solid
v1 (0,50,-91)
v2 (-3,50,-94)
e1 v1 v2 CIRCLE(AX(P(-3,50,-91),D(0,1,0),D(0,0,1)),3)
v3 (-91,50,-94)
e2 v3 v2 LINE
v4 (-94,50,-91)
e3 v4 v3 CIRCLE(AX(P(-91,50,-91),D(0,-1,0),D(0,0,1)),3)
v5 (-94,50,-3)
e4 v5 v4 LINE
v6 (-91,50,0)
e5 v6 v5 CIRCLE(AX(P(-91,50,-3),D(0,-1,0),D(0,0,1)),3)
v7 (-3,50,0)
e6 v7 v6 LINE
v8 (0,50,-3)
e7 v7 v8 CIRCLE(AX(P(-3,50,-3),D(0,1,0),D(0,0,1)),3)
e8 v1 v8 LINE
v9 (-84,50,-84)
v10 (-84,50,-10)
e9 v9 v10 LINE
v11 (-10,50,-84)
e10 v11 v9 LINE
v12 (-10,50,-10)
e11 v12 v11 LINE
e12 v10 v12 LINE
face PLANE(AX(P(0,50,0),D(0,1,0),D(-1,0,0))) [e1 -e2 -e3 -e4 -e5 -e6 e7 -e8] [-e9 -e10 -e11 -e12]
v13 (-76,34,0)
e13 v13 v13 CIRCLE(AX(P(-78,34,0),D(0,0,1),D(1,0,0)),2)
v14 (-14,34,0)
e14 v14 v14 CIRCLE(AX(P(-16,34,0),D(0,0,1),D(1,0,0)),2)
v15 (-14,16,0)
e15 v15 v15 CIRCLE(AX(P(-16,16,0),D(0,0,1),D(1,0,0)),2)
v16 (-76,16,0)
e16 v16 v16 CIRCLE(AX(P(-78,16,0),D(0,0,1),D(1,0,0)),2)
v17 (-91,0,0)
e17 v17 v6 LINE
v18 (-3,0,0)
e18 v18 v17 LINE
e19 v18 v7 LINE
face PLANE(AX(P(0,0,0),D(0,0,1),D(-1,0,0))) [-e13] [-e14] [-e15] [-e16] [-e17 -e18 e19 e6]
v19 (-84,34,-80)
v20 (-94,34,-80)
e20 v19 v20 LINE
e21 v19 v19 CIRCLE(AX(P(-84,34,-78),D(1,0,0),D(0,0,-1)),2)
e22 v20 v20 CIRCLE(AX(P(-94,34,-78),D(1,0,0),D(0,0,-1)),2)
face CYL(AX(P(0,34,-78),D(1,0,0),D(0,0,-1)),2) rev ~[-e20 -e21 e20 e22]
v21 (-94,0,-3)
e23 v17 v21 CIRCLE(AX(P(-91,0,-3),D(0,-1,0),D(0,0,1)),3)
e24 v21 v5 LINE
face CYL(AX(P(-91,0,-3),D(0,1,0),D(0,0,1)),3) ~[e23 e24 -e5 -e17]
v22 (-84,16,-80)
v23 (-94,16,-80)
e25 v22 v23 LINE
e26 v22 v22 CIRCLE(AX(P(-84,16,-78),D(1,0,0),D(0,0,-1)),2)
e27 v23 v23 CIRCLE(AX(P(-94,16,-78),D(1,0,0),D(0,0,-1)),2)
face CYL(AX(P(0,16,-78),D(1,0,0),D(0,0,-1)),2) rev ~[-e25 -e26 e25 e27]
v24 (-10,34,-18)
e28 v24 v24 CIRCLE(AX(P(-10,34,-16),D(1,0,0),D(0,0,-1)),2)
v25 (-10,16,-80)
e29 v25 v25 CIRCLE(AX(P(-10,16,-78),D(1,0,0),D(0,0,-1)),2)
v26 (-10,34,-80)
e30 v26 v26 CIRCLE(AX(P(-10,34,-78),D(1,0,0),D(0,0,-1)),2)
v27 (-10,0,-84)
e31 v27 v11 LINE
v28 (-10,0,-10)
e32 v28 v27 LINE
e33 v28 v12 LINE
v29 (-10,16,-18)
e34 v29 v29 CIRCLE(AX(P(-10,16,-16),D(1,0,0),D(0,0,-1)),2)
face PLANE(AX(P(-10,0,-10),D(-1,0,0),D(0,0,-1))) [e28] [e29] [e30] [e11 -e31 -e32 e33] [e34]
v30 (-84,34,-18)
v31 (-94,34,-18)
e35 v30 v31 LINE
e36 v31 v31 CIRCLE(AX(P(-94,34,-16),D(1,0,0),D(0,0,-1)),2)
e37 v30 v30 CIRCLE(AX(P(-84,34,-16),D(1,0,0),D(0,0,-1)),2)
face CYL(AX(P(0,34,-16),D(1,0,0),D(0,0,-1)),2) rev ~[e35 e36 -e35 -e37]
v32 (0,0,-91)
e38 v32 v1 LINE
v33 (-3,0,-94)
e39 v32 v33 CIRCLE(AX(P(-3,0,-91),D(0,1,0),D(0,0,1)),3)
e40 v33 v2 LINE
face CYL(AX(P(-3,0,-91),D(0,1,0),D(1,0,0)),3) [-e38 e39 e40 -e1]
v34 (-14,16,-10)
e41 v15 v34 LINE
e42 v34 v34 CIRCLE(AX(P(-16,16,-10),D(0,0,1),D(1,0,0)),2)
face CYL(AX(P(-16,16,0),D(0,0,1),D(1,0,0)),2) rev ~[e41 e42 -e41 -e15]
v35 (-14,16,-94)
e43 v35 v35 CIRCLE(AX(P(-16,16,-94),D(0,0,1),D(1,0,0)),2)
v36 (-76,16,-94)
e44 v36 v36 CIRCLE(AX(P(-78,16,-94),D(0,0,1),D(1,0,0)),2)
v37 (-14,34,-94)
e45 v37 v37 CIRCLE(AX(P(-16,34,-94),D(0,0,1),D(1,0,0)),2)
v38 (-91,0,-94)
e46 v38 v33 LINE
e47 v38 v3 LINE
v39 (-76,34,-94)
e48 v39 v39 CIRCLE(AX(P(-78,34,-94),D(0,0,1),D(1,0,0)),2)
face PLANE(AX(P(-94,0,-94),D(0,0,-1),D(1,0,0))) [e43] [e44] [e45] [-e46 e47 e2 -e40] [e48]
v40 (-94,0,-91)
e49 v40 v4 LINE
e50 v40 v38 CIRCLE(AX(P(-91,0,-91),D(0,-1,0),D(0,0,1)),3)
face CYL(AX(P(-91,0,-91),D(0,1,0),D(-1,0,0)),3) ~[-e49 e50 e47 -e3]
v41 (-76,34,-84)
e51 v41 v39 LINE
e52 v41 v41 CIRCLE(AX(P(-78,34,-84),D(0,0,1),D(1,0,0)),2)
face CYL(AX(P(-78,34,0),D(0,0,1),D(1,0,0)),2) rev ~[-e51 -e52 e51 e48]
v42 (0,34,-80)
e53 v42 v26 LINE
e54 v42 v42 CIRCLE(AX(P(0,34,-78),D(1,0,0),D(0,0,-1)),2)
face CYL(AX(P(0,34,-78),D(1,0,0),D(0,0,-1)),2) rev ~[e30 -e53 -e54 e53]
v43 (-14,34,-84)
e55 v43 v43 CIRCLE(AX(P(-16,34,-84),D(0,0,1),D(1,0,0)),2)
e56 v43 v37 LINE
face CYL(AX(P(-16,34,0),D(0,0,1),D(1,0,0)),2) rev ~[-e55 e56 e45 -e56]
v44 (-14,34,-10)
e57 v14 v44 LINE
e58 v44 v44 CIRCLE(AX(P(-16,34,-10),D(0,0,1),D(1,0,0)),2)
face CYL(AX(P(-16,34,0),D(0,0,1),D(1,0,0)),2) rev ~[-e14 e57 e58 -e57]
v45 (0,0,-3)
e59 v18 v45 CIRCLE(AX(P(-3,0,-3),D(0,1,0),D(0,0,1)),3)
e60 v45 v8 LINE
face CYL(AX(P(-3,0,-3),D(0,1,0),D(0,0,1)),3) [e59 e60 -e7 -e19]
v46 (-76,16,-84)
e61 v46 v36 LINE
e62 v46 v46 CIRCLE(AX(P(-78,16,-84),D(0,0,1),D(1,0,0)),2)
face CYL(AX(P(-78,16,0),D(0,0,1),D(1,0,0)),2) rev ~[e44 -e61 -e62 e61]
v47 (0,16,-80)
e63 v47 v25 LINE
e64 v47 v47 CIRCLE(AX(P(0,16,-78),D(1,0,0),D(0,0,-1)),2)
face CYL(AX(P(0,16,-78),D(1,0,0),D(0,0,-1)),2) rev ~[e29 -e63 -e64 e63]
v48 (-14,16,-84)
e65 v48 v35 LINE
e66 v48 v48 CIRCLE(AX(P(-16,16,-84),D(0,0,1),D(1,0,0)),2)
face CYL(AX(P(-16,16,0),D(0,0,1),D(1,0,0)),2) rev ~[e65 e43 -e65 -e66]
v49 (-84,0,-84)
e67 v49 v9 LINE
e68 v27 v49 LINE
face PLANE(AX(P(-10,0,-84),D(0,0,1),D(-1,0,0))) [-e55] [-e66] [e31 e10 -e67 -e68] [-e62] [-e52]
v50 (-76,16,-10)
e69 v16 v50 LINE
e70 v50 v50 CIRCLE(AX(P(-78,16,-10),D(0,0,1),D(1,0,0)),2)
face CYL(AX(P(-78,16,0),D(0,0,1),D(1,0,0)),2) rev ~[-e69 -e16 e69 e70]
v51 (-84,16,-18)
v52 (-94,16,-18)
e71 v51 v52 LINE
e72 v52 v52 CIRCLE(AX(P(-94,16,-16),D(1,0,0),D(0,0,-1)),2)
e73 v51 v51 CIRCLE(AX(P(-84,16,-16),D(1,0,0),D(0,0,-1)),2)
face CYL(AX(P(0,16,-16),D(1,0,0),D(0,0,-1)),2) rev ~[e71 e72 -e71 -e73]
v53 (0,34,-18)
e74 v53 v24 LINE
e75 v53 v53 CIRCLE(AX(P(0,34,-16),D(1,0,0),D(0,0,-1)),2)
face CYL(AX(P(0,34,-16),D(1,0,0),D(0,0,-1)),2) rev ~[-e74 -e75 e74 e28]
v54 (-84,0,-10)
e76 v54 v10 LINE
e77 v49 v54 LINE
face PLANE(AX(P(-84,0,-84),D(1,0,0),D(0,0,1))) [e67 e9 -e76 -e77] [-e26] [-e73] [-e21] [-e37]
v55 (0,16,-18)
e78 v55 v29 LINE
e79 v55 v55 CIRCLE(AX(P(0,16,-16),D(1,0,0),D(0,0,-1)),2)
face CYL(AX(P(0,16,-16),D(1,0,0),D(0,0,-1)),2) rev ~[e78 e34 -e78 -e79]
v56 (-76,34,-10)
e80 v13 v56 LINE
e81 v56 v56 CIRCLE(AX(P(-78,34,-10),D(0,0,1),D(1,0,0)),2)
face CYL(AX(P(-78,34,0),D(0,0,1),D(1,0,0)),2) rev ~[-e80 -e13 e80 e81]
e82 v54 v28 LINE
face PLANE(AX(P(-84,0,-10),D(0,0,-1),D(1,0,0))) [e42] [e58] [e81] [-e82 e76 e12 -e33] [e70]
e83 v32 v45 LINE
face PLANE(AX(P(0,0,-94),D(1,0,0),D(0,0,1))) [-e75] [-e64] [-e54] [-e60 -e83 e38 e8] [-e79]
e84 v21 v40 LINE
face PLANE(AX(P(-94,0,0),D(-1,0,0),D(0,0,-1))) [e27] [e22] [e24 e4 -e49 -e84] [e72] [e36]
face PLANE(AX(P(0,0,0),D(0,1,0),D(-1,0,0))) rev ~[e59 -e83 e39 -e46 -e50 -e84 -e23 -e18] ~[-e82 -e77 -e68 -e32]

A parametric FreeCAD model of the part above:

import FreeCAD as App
import Part
import Sketcher
Q = App.Units.Quantity


def edges_at(feature, points):
    """Names of the edges that pass closest to the given points."""
    edges = feature.Shape.Edges
    near = lambda p: min(range(len(edges)), key=lambda i: edges[i].distToShape(Part.Vertex(*p))[0])
    return sorted({f"Edge{near(p) + 1}" for p in points})

doc = App.newDocument("Part")
body = doc.addObject("PartDesign::Body", "Body")

# Sketch on XZ plane
sketch1 = doc.addObject("Sketcher::SketchObject", "Sketch")
body.addObject(sketch1)
sketch1.AttachmentSupport = (doc.XZ_Plane, [""])
sketch1.MapMode = "FlatFace"
sketch1.addGeometry([
    Part.LineSegment(App.Vector(-94, 0, 0), App.Vector(0, 0, 0)),  # 0
    Part.LineSegment(App.Vector(0, 0, 0), App.Vector(0, -94, 0)),  # 1
    Part.LineSegment(App.Vector(0, -94, 0), App.Vector(-94, -94, 0)),  # 2
    Part.LineSegment(App.Vector(-94, -94, 0), App.Vector(-94, 0, 0)),  # 3
    Part.LineSegment(App.Vector(-10, -10, 0), App.Vector(-84, -10, 0)),  # 4
    Part.LineSegment(App.Vector(-84, -10, 0), App.Vector(-84, -84, 0)),  # 5
    Part.LineSegment(App.Vector(-84, -84, 0), App.Vector(-10, -84, 0)),  # 6
    Part.LineSegment(App.Vector(-10, -84, 0), App.Vector(-10, -10, 0)),  # 7
], False)
sketch1.addConstraint([
    Sketcher.Constraint("Coincident", 0, 2, 1, 1),
    Sketcher.Constraint("Coincident", 1, 2, 2, 1),
    Sketcher.Constraint("Coincident", 2, 2, 3, 1),
    Sketcher.Constraint("Coincident", 3, 2, 0, 1),
    Sketcher.Constraint("Coincident", 4, 2, 5, 1),
    Sketcher.Constraint("Coincident", 5, 2, 6, 1),
    Sketcher.Constraint("Coincident", 6, 2, 7, 1),
    Sketcher.Constraint("Coincident", 7, 2, 4, 1),
    Sketcher.Constraint("Horizontal", 0),
    Sketcher.Constraint("Vertical", 1),
    Sketcher.Constraint("Horizontal", 2),
    Sketcher.Constraint("Vertical", 3),
    Sketcher.Constraint("Horizontal", 4),
    Sketcher.Constraint("Vertical", 5),
    Sketcher.Constraint("Horizontal", 6),
    Sketcher.Constraint("Vertical", 7),
    Sketcher.Constraint("Coincident", 0, 2, -1, 1),
    Sketcher.Constraint("Equal", 2, 1),
    Sketcher.Constraint("Equal", 6, 5),
    Sketcher.Constraint("DistanceX", 4, 2, 4, 1, Q("74 mm")),
    Sketcher.Constraint("DistanceY", 4, 2, -1, 1, Q("10 mm")),
    Sketcher.Constraint("DistanceX", 6, 2, -1, 1, Q("10 mm")),
    Sketcher.Constraint("DistanceX", 3, 2, 4, 2, Q("10 mm")),
])
pad1 = doc.addObject("PartDesign::Pad", "Pad")
body.addObject(pad1)
pad1.Profile = sketch1
pad1.Length = 50
pad1.Reversed = True

# Sketch on XY plane
sketch2 = doc.addObject("Sketcher::SketchObject", "Sketch001")
body.addObject(sketch2)
sketch2.AttachmentSupport = (doc.XY_Plane, [""])
sketch2.MapMode = "FlatFace"
sketch2.addGeometry([
    Part.Circle(App.Vector(-78, 34, 0), App.Vector(0, 0, 1), 2),
    Part.Circle(App.Vector(-16, 34, 0), App.Vector(0, 0, 1), 2),
    Part.Circle(App.Vector(-16, 16, 0), App.Vector(0, 0, 1), 2),
    Part.Circle(App.Vector(-78, 16, 0), App.Vector(0, 0, 1), 2),
], False)
sketch2.addConstraint([
    Sketcher.Constraint("Equal", 0, 1),
    Sketcher.Constraint("Equal", 1, 2),
    Sketcher.Constraint("Equal", 2, 3),
    Sketcher.Constraint("Horizontal", 0, 3, 1, 3),
    Sketcher.Constraint("Horizontal", 2, 3, 3, 3),
    Sketcher.Constraint("Vertical", 1, 3, 2, 3),
    Sketcher.Constraint("Vertical", 0, 3, 3, 3),
    Sketcher.Constraint("Diameter", 0, Q("4 mm")),
    Sketcher.Constraint("DistanceX", 1, 3, -1, 1, Q("16 mm")),
    Sketcher.Constraint("DistanceY", -1, 1, 2, 3, Q("16 mm")),
    Sketcher.Constraint("DistanceX", 0, 3, -1, 1, Q("78 mm")),
    Sketcher.Constraint("DistanceY", -1, 1, 0, 3, Q("34 mm")),
])
pocket1 = doc.addObject("PartDesign::Pocket", "Pocket")
body.addObject(pocket1)
pocket1.Profile = sketch2
pocket1.Length = 94

# Sketch on YZ plane
sketch3 = doc.addObject("Sketcher::SketchObject", "Sketch002")
body.addObject(sketch3)
sketch3.AttachmentSupport = (doc.YZ_Plane, [""])
sketch3.MapMode = "FlatFace"
sketch3.addGeometry([
    Part.Circle(App.Vector(34, -16, 0), App.Vector(0, 0, 1), 2),
    Part.Circle(App.Vector(34, -78, 0), App.Vector(0, 0, 1), 2),
    Part.Circle(App.Vector(16, -78, 0), App.Vector(0, 0, 1), 2),
    Part.Circle(App.Vector(16, -16, 0), App.Vector(0, 0, 1), 2),
], False)
sketch3.addConstraint([
    Sketcher.Constraint("Equal", 0, 1),
    Sketcher.Constraint("Equal", 1, 2),
    Sketcher.Constraint("Equal", 2, 3),
    Sketcher.Constraint("Horizontal", 1, 3, 2, 3),
    Sketcher.Constraint("Horizontal", 0, 3, 3, 3),
    Sketcher.Constraint("Vertical", 0, 3, 1, 3),
    Sketcher.Constraint("Vertical", 2, 3, 3, 3),
    Sketcher.Constraint("Diameter", 0, Q("4 mm")),
    Sketcher.Constraint("DistanceY", 0, 3, -1, 1, Q("16 mm")),
    Sketcher.Constraint("DistanceX", -1, 1, 2, 3, Q("16 mm")),
    Sketcher.Constraint("DistanceX", -1, 1, 0, 3, Q("34 mm")),
    Sketcher.Constraint("DistanceY", 1, 3, -1, 1, Q("78 mm")),
])
pocket2 = doc.addObject("PartDesign::Pocket", "Pocket001")
body.addObject(pocket2)
pocket2.Profile = sketch3
pocket2.Length = 94
doc.recompute()

fillet = doc.addObject("PartDesign::Fillet", "Fillet")
body.addObject(fillet)
fillet.Base = (pocket2, edges_at(pocket2, [
    (0, 25, 0),
    (-94, 25, 0),
    (-94, 25, -94),
    (0, 25, -94),
]))
fillet.Radius = 3

doc.recompute()
